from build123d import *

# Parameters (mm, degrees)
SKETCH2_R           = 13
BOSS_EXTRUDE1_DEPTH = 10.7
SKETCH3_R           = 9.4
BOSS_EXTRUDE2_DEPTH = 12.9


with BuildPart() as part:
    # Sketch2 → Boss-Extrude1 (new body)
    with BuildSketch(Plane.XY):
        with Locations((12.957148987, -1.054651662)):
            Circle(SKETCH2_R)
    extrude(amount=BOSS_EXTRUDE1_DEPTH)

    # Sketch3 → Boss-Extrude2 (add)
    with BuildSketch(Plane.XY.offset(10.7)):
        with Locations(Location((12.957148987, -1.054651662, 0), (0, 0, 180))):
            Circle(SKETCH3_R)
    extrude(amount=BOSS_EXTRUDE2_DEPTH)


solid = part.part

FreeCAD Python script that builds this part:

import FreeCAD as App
import Part
import Sketcher

doc = App.newDocument("Part")
body = doc.addObject("PartDesign::Body", "Body")

sketch1 = doc.addObject("Sketcher::SketchObject", "Sketch")
body.addObject(sketch1)
sketch1.AttachmentSupport = (doc.XY_Plane, [""])
sketch1.MapMode = "FlatFace"
sketch1.addGeometry(Part.Circle(App.Vector(13, -1, 0), App.Vector(0, 0, 1), 13), False)
sketch1.addConstraint([
    Sketcher.Constraint("Diameter", 0, 26.0),
    Sketcher.Constraint("DistanceX", -1, 1, 0, 3, 12.957149),
    Sketcher.Constraint("DistanceY", 0, 3, -1, 1, 1.054652),
])
pad1 = doc.addObject("PartDesign::Pad", "Pad")
body.addObject(pad1)
pad1.Profile = sketch1
pad1.Length = 10.7

sketch2 = doc.addObject("Sketcher::SketchObject", "Sketch001")
body.addObject(sketch2)
sketch2.AttachmentSupport = (doc.XY_Plane, [""])
sketch2.MapMode = "FlatFace"
sketch2.AttachmentOffset = App.Placement(App.Vector(0, 0, 10.7), App.Rotation())
sketch2.addGeometry(Part.Circle(App.Vector(13, -1, 0), App.Vector(0, 0, 1), 9), False)
sketch2.addConstraint([
    Sketcher.Constraint("Diameter", 0, 18.8),
    Sketcher.Constraint("DistanceX", -1, 1, 0, 3, 12.957149),
    Sketcher.Constraint("DistanceY", 0, 3, -1, 1, 1.054652),
])
pad2 = doc.addObject("PartDesign::Pad", "Pad001")
body.addObject(pad2)
pad2.Profile = sketch2
pad2.Length = 12.9

doc.recompute()
